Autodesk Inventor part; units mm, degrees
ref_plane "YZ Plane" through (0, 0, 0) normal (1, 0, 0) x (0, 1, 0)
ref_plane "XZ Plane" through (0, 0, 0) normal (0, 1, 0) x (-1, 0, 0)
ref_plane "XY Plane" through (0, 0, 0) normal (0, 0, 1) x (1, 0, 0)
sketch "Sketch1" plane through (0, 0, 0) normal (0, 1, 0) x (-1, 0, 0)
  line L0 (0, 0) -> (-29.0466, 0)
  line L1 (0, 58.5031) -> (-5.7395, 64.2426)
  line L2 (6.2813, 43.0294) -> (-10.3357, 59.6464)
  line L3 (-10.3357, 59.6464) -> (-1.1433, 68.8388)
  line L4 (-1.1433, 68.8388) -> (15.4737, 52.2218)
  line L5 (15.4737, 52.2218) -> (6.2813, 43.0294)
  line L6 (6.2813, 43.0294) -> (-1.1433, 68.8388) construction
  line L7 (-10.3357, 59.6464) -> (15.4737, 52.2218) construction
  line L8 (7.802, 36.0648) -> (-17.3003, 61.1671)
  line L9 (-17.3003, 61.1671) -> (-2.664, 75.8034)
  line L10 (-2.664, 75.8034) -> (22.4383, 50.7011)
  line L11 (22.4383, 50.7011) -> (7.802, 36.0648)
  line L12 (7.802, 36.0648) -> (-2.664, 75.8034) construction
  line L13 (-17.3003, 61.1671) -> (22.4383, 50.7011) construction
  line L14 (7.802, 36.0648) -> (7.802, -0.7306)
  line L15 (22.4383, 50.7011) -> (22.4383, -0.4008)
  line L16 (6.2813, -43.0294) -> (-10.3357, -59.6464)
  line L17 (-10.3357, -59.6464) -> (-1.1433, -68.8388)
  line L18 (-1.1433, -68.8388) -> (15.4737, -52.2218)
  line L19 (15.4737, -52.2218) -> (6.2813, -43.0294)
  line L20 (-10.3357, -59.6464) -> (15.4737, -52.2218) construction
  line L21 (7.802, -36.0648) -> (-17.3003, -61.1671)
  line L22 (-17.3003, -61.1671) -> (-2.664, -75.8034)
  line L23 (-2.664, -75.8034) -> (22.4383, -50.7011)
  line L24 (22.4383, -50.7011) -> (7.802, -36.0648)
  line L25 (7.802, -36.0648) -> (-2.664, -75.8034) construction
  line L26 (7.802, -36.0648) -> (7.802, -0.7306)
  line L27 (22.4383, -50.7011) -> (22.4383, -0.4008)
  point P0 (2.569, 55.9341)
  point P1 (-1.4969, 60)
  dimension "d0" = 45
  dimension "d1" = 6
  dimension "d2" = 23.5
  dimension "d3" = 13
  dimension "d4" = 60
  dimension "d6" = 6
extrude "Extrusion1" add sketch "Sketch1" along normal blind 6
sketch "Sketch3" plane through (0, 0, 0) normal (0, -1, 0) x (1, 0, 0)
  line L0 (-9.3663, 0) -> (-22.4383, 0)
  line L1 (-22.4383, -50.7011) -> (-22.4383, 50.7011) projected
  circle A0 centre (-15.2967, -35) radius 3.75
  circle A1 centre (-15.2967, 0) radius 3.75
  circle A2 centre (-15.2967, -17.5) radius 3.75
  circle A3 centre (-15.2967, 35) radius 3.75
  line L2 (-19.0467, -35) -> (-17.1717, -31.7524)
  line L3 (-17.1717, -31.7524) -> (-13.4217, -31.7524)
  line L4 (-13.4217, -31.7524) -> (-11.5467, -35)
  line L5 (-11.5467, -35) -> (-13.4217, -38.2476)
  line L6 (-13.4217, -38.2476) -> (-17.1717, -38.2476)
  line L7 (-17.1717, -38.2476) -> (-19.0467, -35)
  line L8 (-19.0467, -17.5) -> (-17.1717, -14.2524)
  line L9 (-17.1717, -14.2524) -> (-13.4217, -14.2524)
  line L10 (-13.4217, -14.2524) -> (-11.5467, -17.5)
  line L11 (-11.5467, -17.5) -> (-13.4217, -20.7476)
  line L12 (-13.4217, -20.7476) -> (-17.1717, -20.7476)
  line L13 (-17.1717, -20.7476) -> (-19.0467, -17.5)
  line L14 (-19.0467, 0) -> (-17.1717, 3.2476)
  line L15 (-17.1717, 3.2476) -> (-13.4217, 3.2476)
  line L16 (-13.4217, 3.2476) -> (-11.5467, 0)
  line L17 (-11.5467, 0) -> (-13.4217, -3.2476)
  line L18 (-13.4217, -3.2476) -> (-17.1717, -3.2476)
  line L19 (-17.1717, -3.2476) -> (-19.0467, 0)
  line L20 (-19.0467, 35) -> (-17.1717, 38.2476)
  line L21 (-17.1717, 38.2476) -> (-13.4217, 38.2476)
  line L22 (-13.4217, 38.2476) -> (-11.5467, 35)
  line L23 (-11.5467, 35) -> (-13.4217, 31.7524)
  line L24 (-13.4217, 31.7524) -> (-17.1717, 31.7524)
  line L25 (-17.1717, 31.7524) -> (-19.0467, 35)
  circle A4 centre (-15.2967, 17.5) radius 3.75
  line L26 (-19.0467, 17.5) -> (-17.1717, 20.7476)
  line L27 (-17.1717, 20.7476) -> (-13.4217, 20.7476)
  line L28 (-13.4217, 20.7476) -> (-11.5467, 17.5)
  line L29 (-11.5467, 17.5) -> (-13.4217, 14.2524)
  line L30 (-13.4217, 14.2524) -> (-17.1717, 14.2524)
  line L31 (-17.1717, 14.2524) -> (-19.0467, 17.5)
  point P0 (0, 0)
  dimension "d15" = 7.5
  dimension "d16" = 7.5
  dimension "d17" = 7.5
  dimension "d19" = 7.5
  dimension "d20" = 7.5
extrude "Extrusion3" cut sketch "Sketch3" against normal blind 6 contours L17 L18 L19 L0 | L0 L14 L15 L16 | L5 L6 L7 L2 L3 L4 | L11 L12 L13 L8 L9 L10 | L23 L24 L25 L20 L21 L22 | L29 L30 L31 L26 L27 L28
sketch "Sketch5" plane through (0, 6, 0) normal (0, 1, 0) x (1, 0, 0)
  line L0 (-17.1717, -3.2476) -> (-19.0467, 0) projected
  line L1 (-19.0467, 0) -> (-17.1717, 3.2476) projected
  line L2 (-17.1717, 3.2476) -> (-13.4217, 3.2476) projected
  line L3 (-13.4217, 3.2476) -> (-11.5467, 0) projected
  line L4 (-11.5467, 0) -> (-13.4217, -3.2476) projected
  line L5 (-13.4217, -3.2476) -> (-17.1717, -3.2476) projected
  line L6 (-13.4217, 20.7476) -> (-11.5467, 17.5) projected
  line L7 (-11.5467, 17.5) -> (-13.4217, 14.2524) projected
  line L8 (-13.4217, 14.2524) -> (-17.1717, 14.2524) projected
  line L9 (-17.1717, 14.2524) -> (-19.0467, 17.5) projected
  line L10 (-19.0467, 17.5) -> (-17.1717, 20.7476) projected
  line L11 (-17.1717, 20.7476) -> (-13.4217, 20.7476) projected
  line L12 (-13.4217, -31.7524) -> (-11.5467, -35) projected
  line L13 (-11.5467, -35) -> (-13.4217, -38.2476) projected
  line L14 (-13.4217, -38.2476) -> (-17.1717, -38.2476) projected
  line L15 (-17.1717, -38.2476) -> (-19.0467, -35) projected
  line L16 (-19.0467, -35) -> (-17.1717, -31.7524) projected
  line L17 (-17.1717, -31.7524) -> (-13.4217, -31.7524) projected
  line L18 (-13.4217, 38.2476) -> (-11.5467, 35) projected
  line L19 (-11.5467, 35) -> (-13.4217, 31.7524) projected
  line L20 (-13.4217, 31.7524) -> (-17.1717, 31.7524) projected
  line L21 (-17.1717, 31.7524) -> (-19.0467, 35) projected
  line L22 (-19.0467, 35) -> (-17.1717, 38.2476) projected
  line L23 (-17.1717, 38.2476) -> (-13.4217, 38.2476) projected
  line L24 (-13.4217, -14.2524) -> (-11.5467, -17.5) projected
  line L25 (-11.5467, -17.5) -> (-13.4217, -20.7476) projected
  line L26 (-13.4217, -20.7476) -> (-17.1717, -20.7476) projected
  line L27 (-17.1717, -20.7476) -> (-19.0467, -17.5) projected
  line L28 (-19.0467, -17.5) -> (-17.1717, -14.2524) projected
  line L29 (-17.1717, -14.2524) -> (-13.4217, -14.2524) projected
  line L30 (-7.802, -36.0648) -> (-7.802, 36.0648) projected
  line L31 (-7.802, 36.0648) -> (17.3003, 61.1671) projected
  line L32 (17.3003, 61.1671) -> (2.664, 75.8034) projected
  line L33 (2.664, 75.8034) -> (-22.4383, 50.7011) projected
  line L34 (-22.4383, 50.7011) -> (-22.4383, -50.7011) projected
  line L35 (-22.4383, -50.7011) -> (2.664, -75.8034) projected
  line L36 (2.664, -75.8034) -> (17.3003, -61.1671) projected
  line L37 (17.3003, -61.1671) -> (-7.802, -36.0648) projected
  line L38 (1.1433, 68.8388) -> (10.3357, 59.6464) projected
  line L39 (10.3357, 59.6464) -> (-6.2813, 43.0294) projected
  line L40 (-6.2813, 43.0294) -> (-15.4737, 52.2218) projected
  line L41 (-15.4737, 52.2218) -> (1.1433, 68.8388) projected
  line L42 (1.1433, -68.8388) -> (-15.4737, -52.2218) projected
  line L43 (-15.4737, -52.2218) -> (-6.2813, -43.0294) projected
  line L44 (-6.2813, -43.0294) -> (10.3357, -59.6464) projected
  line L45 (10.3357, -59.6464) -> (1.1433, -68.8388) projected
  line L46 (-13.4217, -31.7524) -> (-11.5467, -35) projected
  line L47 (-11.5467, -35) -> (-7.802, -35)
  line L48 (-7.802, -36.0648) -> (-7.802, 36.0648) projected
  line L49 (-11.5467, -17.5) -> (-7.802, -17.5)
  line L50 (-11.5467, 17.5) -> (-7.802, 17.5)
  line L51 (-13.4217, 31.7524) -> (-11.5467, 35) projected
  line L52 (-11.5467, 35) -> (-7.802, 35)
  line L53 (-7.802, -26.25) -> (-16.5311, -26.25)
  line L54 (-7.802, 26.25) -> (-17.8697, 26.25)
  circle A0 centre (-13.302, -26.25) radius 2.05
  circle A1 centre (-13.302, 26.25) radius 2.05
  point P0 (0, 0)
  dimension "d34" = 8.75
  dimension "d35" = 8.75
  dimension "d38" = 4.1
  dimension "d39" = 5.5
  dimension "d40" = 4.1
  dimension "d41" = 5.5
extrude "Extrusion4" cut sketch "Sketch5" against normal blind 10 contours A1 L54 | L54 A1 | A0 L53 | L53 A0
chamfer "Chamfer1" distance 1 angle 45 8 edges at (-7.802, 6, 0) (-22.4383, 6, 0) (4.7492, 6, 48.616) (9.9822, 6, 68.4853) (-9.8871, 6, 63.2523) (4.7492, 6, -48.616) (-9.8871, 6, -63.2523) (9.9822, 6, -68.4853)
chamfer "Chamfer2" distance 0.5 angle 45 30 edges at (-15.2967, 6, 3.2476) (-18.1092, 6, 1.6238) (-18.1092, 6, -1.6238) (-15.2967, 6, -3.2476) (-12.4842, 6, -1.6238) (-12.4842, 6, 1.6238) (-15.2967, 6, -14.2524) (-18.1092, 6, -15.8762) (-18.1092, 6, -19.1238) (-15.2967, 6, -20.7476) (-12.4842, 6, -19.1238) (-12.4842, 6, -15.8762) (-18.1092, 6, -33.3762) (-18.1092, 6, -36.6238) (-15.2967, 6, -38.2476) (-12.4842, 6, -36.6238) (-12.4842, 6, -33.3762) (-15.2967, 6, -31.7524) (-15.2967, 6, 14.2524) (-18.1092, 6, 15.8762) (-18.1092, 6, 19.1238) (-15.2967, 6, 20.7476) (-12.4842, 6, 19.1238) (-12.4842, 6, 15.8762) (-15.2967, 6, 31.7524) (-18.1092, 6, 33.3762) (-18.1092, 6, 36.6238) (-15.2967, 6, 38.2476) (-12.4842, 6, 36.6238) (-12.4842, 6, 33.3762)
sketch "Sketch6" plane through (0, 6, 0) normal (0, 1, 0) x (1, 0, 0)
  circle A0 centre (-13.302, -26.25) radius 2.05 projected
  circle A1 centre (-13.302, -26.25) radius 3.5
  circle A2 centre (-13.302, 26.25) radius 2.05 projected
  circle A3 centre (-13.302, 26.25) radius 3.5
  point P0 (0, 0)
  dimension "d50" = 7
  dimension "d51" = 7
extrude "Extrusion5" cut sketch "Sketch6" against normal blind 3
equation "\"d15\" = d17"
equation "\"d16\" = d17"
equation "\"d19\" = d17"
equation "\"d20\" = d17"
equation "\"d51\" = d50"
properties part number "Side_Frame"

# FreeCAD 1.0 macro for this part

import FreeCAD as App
import Part
import Sketcher
from FreeCAD import Vector
Q = App.Units.Quantity


def edges_at(feature, points):
    """Names of the edges that pass closest to the given points."""
    edges = feature.Shape.Edges
    near = lambda p: min(range(len(edges)), key=lambda i: edges[i].distToShape(Part.Vertex(*p))[0])
    return sorted({f"Edge{near(p) + 1}" for p in points})


def add_polygon(sketch, points):
    """Adds a closed chain of lines whose ends are joined by coincident constraints."""
    first, n = sketch.GeometryCount, len(points)
    for a, b in zip(points, points[1:] + points[:1]):
        sketch.addGeometry(Part.LineSegment(App.Vector(*a, 0), App.Vector(*b, 0)), False)
    for i in range(n):
        sketch.addConstraint(Sketcher.Constraint("Coincident", first + i, 2, first + (i + 1) % n, 1))

doc = App.newDocument("Part")
body = doc.addObject("PartDesign::Body", "Body")

# Sketch on XZ plane
sketch1 = doc.addObject("Sketcher::SketchObject", "Sketch")
body.addObject(sketch1)
sketch1.AttachmentSupport = (doc.XZ_Plane, [""])
sketch1.MapMode = "FlatFace"
add_polygon(sketch1, [(17, 61), (-8, 36), (-8, -36), (17, -61), (3, -76), (-22, -51), (-22, 51), (3, 76)])  # lines 0-7
add_polygon(sketch1, [(-15, 52), (-6, 43), (10, 60), (1, 69)])  # lines 8-11
add_polygon(sketch1, [(-6, -43), (-15, -52), (1, -69), (10, -60)])  # lines 12-15
sketch1.addConstraint([
    Sketcher.Constraint("Vertical", 1),
    Sketcher.Constraint("Vertical", 5),
    Sketcher.Constraint("Symmetric", 3, 2, 6, 2, -1),
    Sketcher.Constraint("Symmetric", 2, 2, 7, 2, -1),
    Sketcher.Constraint("Symmetric", 11, 2, 12, 2, -1),
    Sketcher.Constraint("Symmetric", 10, 2, 13, 2, -1),
    Sketcher.Constraint("Symmetric", 9, 2, 14, 2, -1),
    Sketcher.Constraint("Symmetric", 8, 2, 15, 2, -1),
    Sketcher.Constraint("Perpendicular", 0, 2),
    Sketcher.Constraint("Perpendicular", 2, 3),
    Sketcher.Constraint("Perpendicular", 3, 4),
    Sketcher.Constraint("Perpendicular", 4, 6),
    Sketcher.Constraint("Perpendicular", 6, 7),
    Sketcher.Constraint("Parallel", 7, 8),
    Sketcher.Constraint("Perpendicular", 8, 9),
    Sketcher.Constraint("Perpendicular", 9, 10),
    Sketcher.Constraint("Perpendicular", 10, 11),
    Sketcher.Constraint("Equal", 2, 4),
    Sketcher.Constraint("Distance", 8, Q("13 mm")),
    Sketcher.Constraint("Distance", 9, Q("23.5 mm")),
    Sketcher.Constraint("Distance", 0, Q("35.5 mm")),
    Sketcher.Constraint("DistanceY", 1, 2, 1, 1, Q("72.1296 mm")),
    Sketcher.Constraint("DistanceY", 5, 1, 5, 2, Q("101.4022 mm")),
    Sketcher.Constraint("DistanceX", 0, 2, -1, 1, Q("7.802 mm")),
    Sketcher.Constraint("DistanceX", 5, 2, 8, 2, Q("16.157 mm")),
    Sketcher.Constraint("DistanceY", 8, 2, 6, 2, Q("32.774 mm")),
])
pad1 = doc.addObject("PartDesign::Pad", "Pad")
body.addObject(pad1)
pad1.Profile = sketch1
pad1.Length = 6
pad1.Reversed = True

# Sketch on XZ plane
sketch2 = doc.addObject("Sketcher::SketchObject", "Sketch001")
body.addObject(sketch2)
sketch2.AttachmentSupport = (doc.XZ_Plane, [""])
sketch2.MapMode = "FlatFace"
add_polygon(sketch2, [(-13.4, -3.2), (-11.5, 0), (-13.4, 3.2), (-17.2, 3.2), (-19, 0), (-17.2, -3.2)])  # lines 0-5
add_polygon(sketch2, [(-13.4, -38.2), (-11.5, -35), (-13.4, -31.8), (-17.2, -31.8), (-19, -35), (-17.2, -38.2)])  # lines 6-11
add_polygon(sketch2, [(-13.4, -20.7), (-11.5, -17.5), (-13.4, -14.3), (-17.2, -14.3), (-19, -17.5), (-17.2, -20.7)])  # lines 12-17
add_polygon(sketch2, [(-13.4, 31.8), (-11.5, 35), (-13.4, 38.2), (-17.2, 38.2), (-19, 35), (-17.2, 31.8)])  # lines 18-23
add_polygon(sketch2, [(-13.4, 14.3), (-11.5, 17.5), (-13.4, 20.7), (-17.2, 20.7), (-19, 17.5), (-17.2, 14.3)])  # lines 24-29
sketch2.addConstraint([
    Sketcher.Constraint("Horizontal", 2),
    Sketcher.Constraint("Horizontal", 5),
    Sketcher.Constraint("Horizontal", 8),
    Sketcher.Constraint("Horizontal", 11),
    Sketcher.Constraint("Horizontal", 14),
    Sketcher.Constraint("Horizontal", 17),
    Sketcher.Constraint("Horizontal", 20),
    Sketcher.Constraint("Horizontal", 23),
    Sketcher.Constraint("Horizontal", 26),
    Sketcher.Constraint("Horizontal", 29),
    Sketcher.Constraint("Symmetric", 2, 2, 4, 2, -1),
    Sketcher.Constraint("Symmetric", 6, 2, 18, 2, -1),
    Sketcher.Constraint("Symmetric", 11, 2, 19, 2, -1),
    Sketcher.Constraint("Symmetric", 9, 2, 21, 2, -1),
    Sketcher.Constraint("Symmetric", 8, 2, 22, 2, -1),
    Sketcher.Constraint("Symmetric", 12, 2, 24, 2, -1),
    Sketcher.Constraint("Symmetric", 17, 2, 25, 2, -1),
    Sketcher.Constraint("Symmetric", 15, 2, 27, 2, -1),
    Sketcher.Constraint("Symmetric", 14, 2, 28, 2, -1),
    Sketcher.Constraint("PointOnObject", 0, 2, -1),
    Sketcher.Constraint("PointOnObject", 3, 2, -1),
    Sketcher.Constraint("Parallel", 0, 3),
    Sketcher.Constraint("Parallel", 1, 4),
    Sketcher.Constraint("Parallel", 3, 6),
    Sketcher.Constraint("Parallel", 4, 7),
    Sketcher.Constraint("Parallel", 6, 9),
    Sketcher.Constraint("Parallel", 7, 10),
    Sketcher.Constraint("Parallel", 9, 12),
    Sketcher.Constraint("Parallel", 10, 13),
    Sketcher.Constraint("Parallel", 12, 15),
    Sketcher.Constraint("Parallel", 13, 16),
    Sketcher.Constraint("Parallel", 15, 18),
    Sketcher.Constraint("Parallel", 18, 21),
    Sketcher.Constraint("Parallel", 21, 24),
    Sketcher.Constraint("Parallel", 24, 27),
    Sketcher.Constraint("Horizontal", 6, 2, 9, 2),
    Sketcher.Constraint("Horizontal", 12, 2, 15, 2),
    Sketcher.Constraint("Vertical", 0, 2, 6, 2),
    Sketcher.Constraint("Vertical", 5, 2, 7, 2),
    Sketcher.Constraint("Vertical", 4, 2, 8, 2),
    Sketcher.Constraint("Vertical", 8, 2, 10, 2),
    Sketcher.Constraint("Vertical", 6, 2, 12, 2),
    Sketcher.Constraint("Vertical", 11, 2, 13, 2),
    Sketcher.Constraint("Vertical", 10, 2, 14, 2),
    Sketcher.Constraint("Vertical", 14, 2, 16, 2),
    Sketcher.Constraint("DistanceX", 3, 2, 0, 2, Q("7.5 mm")),
    Sketcher.Constraint("Angle", 0, Q("60 deg")),
    Sketcher.Constraint("DistanceY", 6, 2, -1, 1, Q("35 mm")),
    Sketcher.Constraint("DistanceX", 2, 2, 2, 1, Q("3.75 mm")),
    Sketcher.Constraint("DistanceY", 12, 2, -1, 1, Q("17.5 mm")),
    Sketcher.Constraint("DistanceX", 0, 2, -1, 1, Q("11.5467 mm")),
])
pocket1 = doc.addObject("PartDesign::Pocket", "Pocket")
body.addObject(pocket1)
pocket1.Profile = sketch2
pocket1.Length = 6

# Sketch on XZ plane
sketch3 = doc.addObject("Sketcher::SketchObject", "Sketch002")
body.addObject(sketch3)
sketch3.AttachmentSupport = (doc.XZ_Plane, [""])
sketch3.MapMode = "FlatFace"
sketch3.AttachmentOffset = App.Placement(Vector(0, 0, -6), App.Rotation())
sketch3.addGeometry([
    Part.Circle(Vector(-13.3, -26.2, 0), Vector(0, 0, 1), 2),
    Part.Circle(Vector(-13.3, 26.2, 0), Vector(0, 0, 1), 2),
], False)
sketch3.addConstraint([
    Sketcher.Constraint("Equal", 0, 1),
    Sketcher.Constraint("Symmetric", 0, 3, 1, 3, -1),
    Sketcher.Constraint("Diameter", 0, Q("4.1 mm")),
    Sketcher.Constraint("DistanceY", 0, 3, 1, 3, Q("52.5 mm")),
    Sketcher.Constraint("DistanceX", 0, 3, -1, 1, Q("13.302 mm")),
])
pocket2 = doc.addObject("PartDesign::Pocket", "Pocket001")
body.addObject(pocket2)
pocket2.Profile = sketch3
pocket2.Length = 10
pocket2.Reversed = True
doc.recompute()

chamfer = doc.addObject("PartDesign::Chamfer", "Chamfer")
body.addObject(chamfer)
chamfer.Base = (pocket2, edges_at(pocket2, [
    (-7.802, 6, 0),
    (-22.438, 6, 0),
    (4.749, 6, 48.616),
    (9.982, 6, 68.485),
    (-9.887, 6, 63.252),
    (4.749, 6, -48.616),
    (-9.887, 6, -63.252),
    (9.982, 6, -68.485),
]))
chamfer.Size = 1
doc.recompute()

chamfer2 = doc.addObject("PartDesign::Chamfer", "Chamfer001")
body.addObject(chamfer2)
chamfer2.Base = (chamfer, edges_at(chamfer, [
    (-15.297, 6, 3.248),
    (-18.109, 6, 1.624),
    (-18.109, 6, -1.624),
    (-15.297, 6, -3.248),
    (-12.484, 6, -1.624),
    (-12.484, 6, 1.624),
    (-15.297, 6, -14.252),
    (-18.109, 6, -15.876),
    (-18.109, 6, -19.124),
    (-15.297, 6, -20.748),
    (-12.484, 6, -19.124),
    (-12.484, 6, -15.876),
    (-18.109, 6, -33.376),
    (-18.109, 6, -36.624),
    (-15.297, 6, -38.248),
    (-12.484, 6, -36.624),
    (-12.484, 6, -33.376),
    (-15.297, 6, -31.752),
    (-15.297, 6, 14.252),
    (-18.109, 6, 15.876),
    (-18.109, 6, 19.124),
    (-15.297, 6, 20.748),
    (-12.484, 6, 19.124),
    (-12.484, 6, 15.876),
    (-15.297, 6, 31.752),
    (-18.109, 6, 33.376),
    (-18.109, 6, 36.624),
    (-15.297, 6, 38.248),
    (-12.484, 6, 36.624),
    (-12.484, 6, 33.376),
]))
chamfer2.Size = 0.5

# Sketch on XZ plane
sketch4 = doc.addObject("Sketcher::SketchObject", "Sketch003")
body.addObject(sketch4)
sketch4.AttachmentSupport = (doc.XZ_Plane, [""])
sketch4.MapMode = "FlatFace"
sketch4.AttachmentOffset = App.Placement(Vector(0, 0, -6), App.Rotation())
sketch4.addGeometry([
    Part.Circle(Vector(-13.3, 26.2, 0), Vector(0, 0, 1), 3.5),
    Part.Circle(Vector(-13.3, 26.2, 0), Vector(0, 0, 1), 2),
    Part.Circle(Vector(-13.3, -26.2, 0), Vector(0, 0, 1), 3.5),
    Part.Circle(Vector(-13.3, -26.2, 0), Vector(0, 0, 1), 2),
], False)
sketch4.addConstraint([
    Sketcher.Constraint("Coincident", 1, 3, 0, 3),
    Sketcher.Constraint("Coincident", 3, 3, 2, 3),
    Sketcher.Constraint("Equal", 0, 2),
    Sketcher.Constraint("Equal", 1, 3),
    Sketcher.Constraint("Symmetric", 0, 3, 2, 3, -1),
    Sketcher.Constraint("Diameter", 0, Q("7 mm")),
    Sketcher.Constraint("Diameter", 1, Q("4.1 mm")),
    Sketcher.Constraint("DistanceY", 2, 3, 0, 3, Q("52.5 mm")),
    Sketcher.Constraint("DistanceX", 0, 3, -1, 1, Q("13.302 mm")),
])
pocket3 = doc.addObject("PartDesign::Pocket", "Pocket002")
body.addObject(pocket3)
pocket3.Profile = sketch4
pocket3.Length = 3
pocket3.Reversed = True

doc.recompute()
